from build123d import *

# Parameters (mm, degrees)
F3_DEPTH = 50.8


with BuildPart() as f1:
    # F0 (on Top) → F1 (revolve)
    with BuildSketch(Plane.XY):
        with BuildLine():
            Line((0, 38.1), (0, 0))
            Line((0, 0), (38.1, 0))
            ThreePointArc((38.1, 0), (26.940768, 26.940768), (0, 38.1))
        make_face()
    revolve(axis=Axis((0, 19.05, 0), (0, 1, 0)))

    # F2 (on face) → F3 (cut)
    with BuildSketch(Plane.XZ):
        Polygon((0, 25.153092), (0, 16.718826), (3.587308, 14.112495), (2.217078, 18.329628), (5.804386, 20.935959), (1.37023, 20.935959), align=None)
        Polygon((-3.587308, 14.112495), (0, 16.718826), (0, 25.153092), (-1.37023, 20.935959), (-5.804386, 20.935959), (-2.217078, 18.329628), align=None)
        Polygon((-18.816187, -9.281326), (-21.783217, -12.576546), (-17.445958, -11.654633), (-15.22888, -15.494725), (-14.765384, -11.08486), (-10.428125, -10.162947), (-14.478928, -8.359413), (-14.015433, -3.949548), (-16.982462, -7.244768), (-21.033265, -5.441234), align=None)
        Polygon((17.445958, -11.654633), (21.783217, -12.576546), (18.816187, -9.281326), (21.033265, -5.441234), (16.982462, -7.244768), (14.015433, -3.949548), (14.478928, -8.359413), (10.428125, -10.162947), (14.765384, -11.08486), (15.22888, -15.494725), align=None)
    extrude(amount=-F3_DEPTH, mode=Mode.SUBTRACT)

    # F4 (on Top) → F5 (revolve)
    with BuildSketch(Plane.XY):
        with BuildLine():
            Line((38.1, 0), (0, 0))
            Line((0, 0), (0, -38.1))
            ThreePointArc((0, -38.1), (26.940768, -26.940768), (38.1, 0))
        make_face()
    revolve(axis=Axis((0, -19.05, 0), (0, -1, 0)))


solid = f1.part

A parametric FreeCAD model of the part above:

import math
import FreeCAD as App
import Part
import Sketcher
Q = App.Units.Quantity

doc = App.newDocument("Part")
body = doc.addObject("PartDesign::Body", "Body")

# Sketch on XY plane
sketch1 = doc.addObject("Sketcher::SketchObject", "Sketch")
body.addObject(sketch1)
sketch1.AttachmentSupport = (doc.XY_Plane, [""])
sketch1.MapMode = "FlatFace"
sketch1.addGeometry([
    Part.LineSegment(App.Vector(0, 38, 0), App.Vector(0, 0, 0)),
    Part.LineSegment(App.Vector(0, 0, 0), App.Vector(38, 0, 0)),
    Part.ArcOfCircle(Part.Circle(App.Vector(0, 0, 0), App.Vector(0, 0, 1), 38), math.radians(0), math.radians(90)),
], False)
sketch1.addConstraint([
    Sketcher.Constraint("Coincident", 0, 2, 1, 1),
    Sketcher.Constraint("Coincident", 1, 2, 2, 1),
    Sketcher.Constraint("Coincident", 2, 2, 0, 1),
    Sketcher.Constraint("Vertical", 0),
    Sketcher.Constraint("Horizontal", 1),
    Sketcher.Constraint("Coincident", 2, 3, -1, 1),
    Sketcher.Constraint("Coincident", 0, 2, -1, 1),
    Sketcher.Constraint("Radius", 2, Q("1.5 in")),
])
revolution = doc.addObject("PartDesign::Revolution", "Revolution")
body.addObject(revolution)
revolution.Profile = sketch1
revolution.ReferenceAxis = (sketch1, ["V_Axis"])
revolution.Angle = 360

# Sketch on XZ plane
sketch2 = doc.addObject("Sketcher::SketchObject", "Sketch001")
body.addObject(sketch2)
sketch2.AttachmentSupport = (doc.XZ_Plane, [""])
sketch2.MapMode = "FlatFace"
sketch2.addGeometry([
    Part.LineSegment(App.Vector(0, 16.7, 0), App.Vector(3.6, 14.1, 0)),  # 0
    Part.LineSegment(App.Vector(3.6, 14.1, 0), App.Vector(2.2, 18.3, 0)),  # 1
    Part.LineSegment(App.Vector(2.2, 18.3, 0), App.Vector(5.8, 20.9, 0)),  # 2
    Part.LineSegment(App.Vector(5.8, 20.9, 0), App.Vector(1.4, 20.9, 0)),  # 3
    Part.LineSegment(App.Vector(1.4, 20.9, 0), App.Vector(0, 25.2, 0)),  # 4
    Part.LineSegment(App.Vector(0, 25.2, 0), App.Vector(-1.4, 20.9, 0)),  # 5
    Part.LineSegment(App.Vector(-1.4, 20.9, 0), App.Vector(-5.8, 20.9, 0)),  # 6
    Part.LineSegment(App.Vector(-5.8, 20.9, 0), App.Vector(-2.2, 18.3, 0)),  # 7
    Part.LineSegment(App.Vector(-2.2, 18.3, 0), App.Vector(-3.6, 14.1, 0)),  # 8
    Part.LineSegment(App.Vector(-3.6, 14.1, 0), App.Vector(0, 16.7, 0)),  # 9
    Part.LineSegment(App.Vector(-18.8, -9.3, 0), App.Vector(-21.8, -12.6, 0)),  # 10
    Part.LineSegment(App.Vector(-21.8, -12.6, 0), App.Vector(-17.4, -11.7, 0)),  # 11
    Part.LineSegment(App.Vector(-17.4, -11.7, 0), App.Vector(-15.2, -15.5, 0)),  # 12
    Part.LineSegment(App.Vector(-15.2, -15.5, 0), App.Vector(-14.8, -11.1, 0)),  # 13
    Part.LineSegment(App.Vector(-14.8, -11.1, 0), App.Vector(-10.4, -10.2, 0)),  # 14
    Part.LineSegment(App.Vector(-10.4, -10.2, 0), App.Vector(-14.5, -8.4, 0)),  # 15
    Part.LineSegment(App.Vector(-14.5, -8.4, 0), App.Vector(-14, -3.9, 0)),  # 16
    Part.LineSegment(App.Vector(-14, -3.9, 0), App.Vector(-17, -7.2, 0)),  # 17
    Part.LineSegment(App.Vector(-17, -7.2, 0), App.Vector(-21, -5.4, 0)),  # 18
    Part.LineSegment(App.Vector(-21, -5.4, 0), App.Vector(-18.8, -9.3, 0)),  # 19
    Part.LineSegment(App.Vector(17.4, -11.7, 0), App.Vector(21.8, -12.6, 0)),  # 20
    Part.LineSegment(App.Vector(21.8, -12.6, 0), App.Vector(18.8, -9.3, 0)),  # 21
    Part.LineSegment(App.Vector(18.8, -9.3, 0), App.Vector(21, -5.4, 0)),  # 22
    Part.LineSegment(App.Vector(21, -5.4, 0), App.Vector(17, -7.2, 0)),  # 23
    Part.LineSegment(App.Vector(17, -7.2, 0), App.Vector(14, -3.9, 0)),  # 24
    Part.LineSegment(App.Vector(14, -3.9, 0), App.Vector(14.5, -8.4, 0)),  # 25
    Part.LineSegment(App.Vector(14.5, -8.4, 0), App.Vector(10.4, -10.2, 0)),  # 26
    Part.LineSegment(App.Vector(10.4, -10.2, 0), App.Vector(14.8, -11.1, 0)),  # 27
    Part.LineSegment(App.Vector(14.8, -11.1, 0), App.Vector(15.2, -15.5, 0)),  # 28
    Part.LineSegment(App.Vector(15.2, -15.5, 0), App.Vector(17.4, -11.7, 0)),  # 29
], False)
sketch2.addConstraint([
    Sketcher.Constraint("Coincident", 0, 2, 1, 1),
    Sketcher.Constraint("Coincident", 1, 2, 2, 1),
    Sketcher.Constraint("Coincident", 2, 2, 3, 1),
    Sketcher.Constraint("Coincident", 3, 2, 4, 1),
    Sketcher.Constraint("Coincident", 4, 2, 5, 1),
    Sketcher.Constraint("Coincident", 5, 2, 6, 1),
    Sketcher.Constraint("Coincident", 6, 2, 7, 1),
    Sketcher.Constraint("Coincident", 7, 2, 8, 1),
    Sketcher.Constraint("Coincident", 8, 2, 9, 1),
    Sketcher.Constraint("Coincident", 9, 2, 0, 1),
    Sketcher.Constraint("Coincident", 10, 2, 11, 1),
    Sketcher.Constraint("Coincident", 11, 2, 12, 1),
    Sketcher.Constraint("Coincident", 12, 2, 13, 1),
    Sketcher.Constraint("Coincident", 13, 2, 14, 1),
    Sketcher.Constraint("Coincident", 14, 2, 15, 1),
    Sketcher.Constraint("Coincident", 15, 2, 16, 1),
    Sketcher.Constraint("Coincident", 16, 2, 17, 1),
    Sketcher.Constraint("Coincident", 17, 2, 18, 1),
    Sketcher.Constraint("Coincident", 18, 2, 19, 1),
    Sketcher.Constraint("Coincident", 19, 2, 10, 1),
    Sketcher.Constraint("Coincident", 20, 2, 21, 1),
    Sketcher.Constraint("Coincident", 21, 2, 22, 1),
    Sketcher.Constraint("Coincident", 22, 2, 23, 1),
    Sketcher.Constraint("Coincident", 23, 2, 24, 1),
    Sketcher.Constraint("Coincident", 24, 2, 25, 1),
    Sketcher.Constraint("Coincident", 25, 2, 26, 1),
    Sketcher.Constraint("Coincident", 26, 2, 27, 1),
    Sketcher.Constraint("Coincident", 27, 2, 28, 1),
    Sketcher.Constraint("Coincident", 28, 2, 29, 1),
    Sketcher.Constraint("Coincident", 29, 2, 20, 1),
    Sketcher.Constraint("Horizontal", 3),
    Sketcher.Constraint("Horizontal", 6),
    Sketcher.Constraint("Symmetric", 3, 2, 5, 2, -2),
    Sketcher.Constraint("Symmetric", 1, 2, 7, 2, -2),
    Sketcher.Constraint("Symmetric", 0, 2, 8, 2, -2),
    Sketcher.Constraint("Symmetric", 10, 2, 20, 2, -2),
    Sketcher.Constraint("Symmetric", 19, 2, 21, 2, -2),
    Sketcher.Constraint("Symmetric", 18, 2, 22, 2, -2),
    Sketcher.Constraint("Symmetric", 17, 2, 23, 2, -2),
    Sketcher.Constraint("Symmetric", 16, 2, 24, 2, -2),
    Sketcher.Constraint("Symmetric", 15, 2, 25, 2, -2),
    Sketcher.Constraint("Symmetric", 14, 2, 26, 2, -2),
    Sketcher.Constraint("Symmetric", 13, 2, 27, 2, -2),
    Sketcher.Constraint("Symmetric", 12, 2, 28, 2, -2),
    Sketcher.Constraint("Symmetric", 11, 2, 29, 2, -2),
    Sketcher.Constraint("PointOnObject", 4, 2, -2),
    Sketcher.Constraint("PointOnObject", 9, 2, -2),
    Sketcher.Constraint("Parallel", 1, 4),
    Sketcher.Constraint("Parallel", 0, 7),
    Sketcher.Constraint("Parallel", 2, 9),
    Sketcher.Constraint("Parallel", 11, 14),
    Sketcher.Constraint("Parallel", 13, 16),
    Sketcher.Constraint("Parallel", 10, 17),
    Sketcher.Constraint("Parallel", 15, 18),
    Sketcher.Constraint("Parallel", 12, 19),
    Sketcher.Constraint("Equal", 0, 1),
    Sketcher.Constraint("Equal", 1, 2),
    Sketcher.Constraint("Equal", 2, 4),
    Sketcher.Constraint("Equal", 9, 10),
    Sketcher.Constraint("Equal", 10, 11),
    Sketcher.Constraint("Equal", 11, 12),
    Sketcher.Constraint("Equal", 12, 13),
    Sketcher.Constraint("Equal", 13, 14),
    Sketcher.Constraint("Equal", 14, 15),
    Sketcher.Constraint("Equal", 15, 16),
    Sketcher.Constraint("Equal", 16, 17),
    Sketcher.Constraint("Equal", 17, 18),
    Sketcher.Constraint("Equal", 18, 19),
    Sketcher.Constraint("Angle", 0, Q("-35.999991 deg")),
    Sketcher.Constraint("Angle", 1, Q("108.000005 deg")),
    Sketcher.Constraint("Angle", 10, Q("-132.000006 deg")),
    Sketcher.Constraint("Angle", 11, Q("12.000002 deg")),
    Sketcher.Constraint("Angle", 12, Q("-60.000002 deg")),
    Sketcher.Constraint("DistanceY", 9, 2, 1, 2, Q("1.610802 mm")),
    Sketcher.Constraint("DistanceX", 13, 2, 20, 2, Q("36.548601 mm")),
    Sketcher.Constraint("DistanceY", -1, 1, 2, 2, Q("20.935959 mm")),
    Sketcher.Constraint("DistanceY", 13, 2, -1, 1, Q("11.08486 mm")),
])
pocket1 = doc.addObject("PartDesign::Pocket", "Pocket")
body.addObject(pocket1)
pocket1.Profile = sketch2
pocket1.Length = Q("2 in")

# Sketch on XY plane
sketch3 = doc.addObject("Sketcher::SketchObject", "Sketch002")
body.addObject(sketch3)
sketch3.AttachmentSupport = (doc.XY_Plane, [""])
sketch3.MapMode = "FlatFace"
sketch3.addGeometry([
    Part.LineSegment(App.Vector(38, 0, 0), App.Vector(0, 0, 0)),
    Part.LineSegment(App.Vector(0, 0, 0), App.Vector(0, -38, 0)),
    Part.ArcOfCircle(Part.Circle(App.Vector(0, 0, 0), App.Vector(0, 0, 1), 38), math.radians(-90), math.radians(0)),
], False)
sketch3.addConstraint([
    Sketcher.Constraint("Coincident", 0, 2, 1, 1),
    Sketcher.Constraint("Coincident", 1, 2, 2, 1),
    Sketcher.Constraint("Coincident", 2, 2, 0, 1),
    Sketcher.Constraint("Horizontal", 0),
    Sketcher.Constraint("Vertical", 1),
    Sketcher.Constraint("Coincident", 2, 3, -1, 1),
    Sketcher.Constraint("Coincident", 0, 2, -1, 1),
    Sketcher.Constraint("Radius", 2, Q("1.5 in")),
])
revolution2 = doc.addObject("PartDesign::Revolution", "Revolution001")
body.addObject(revolution2)
revolution2.Profile = sketch3
revolution2.ReferenceAxis = (sketch3, ["V_Axis"])
revolution2.Angle = 360

doc.recompute()
